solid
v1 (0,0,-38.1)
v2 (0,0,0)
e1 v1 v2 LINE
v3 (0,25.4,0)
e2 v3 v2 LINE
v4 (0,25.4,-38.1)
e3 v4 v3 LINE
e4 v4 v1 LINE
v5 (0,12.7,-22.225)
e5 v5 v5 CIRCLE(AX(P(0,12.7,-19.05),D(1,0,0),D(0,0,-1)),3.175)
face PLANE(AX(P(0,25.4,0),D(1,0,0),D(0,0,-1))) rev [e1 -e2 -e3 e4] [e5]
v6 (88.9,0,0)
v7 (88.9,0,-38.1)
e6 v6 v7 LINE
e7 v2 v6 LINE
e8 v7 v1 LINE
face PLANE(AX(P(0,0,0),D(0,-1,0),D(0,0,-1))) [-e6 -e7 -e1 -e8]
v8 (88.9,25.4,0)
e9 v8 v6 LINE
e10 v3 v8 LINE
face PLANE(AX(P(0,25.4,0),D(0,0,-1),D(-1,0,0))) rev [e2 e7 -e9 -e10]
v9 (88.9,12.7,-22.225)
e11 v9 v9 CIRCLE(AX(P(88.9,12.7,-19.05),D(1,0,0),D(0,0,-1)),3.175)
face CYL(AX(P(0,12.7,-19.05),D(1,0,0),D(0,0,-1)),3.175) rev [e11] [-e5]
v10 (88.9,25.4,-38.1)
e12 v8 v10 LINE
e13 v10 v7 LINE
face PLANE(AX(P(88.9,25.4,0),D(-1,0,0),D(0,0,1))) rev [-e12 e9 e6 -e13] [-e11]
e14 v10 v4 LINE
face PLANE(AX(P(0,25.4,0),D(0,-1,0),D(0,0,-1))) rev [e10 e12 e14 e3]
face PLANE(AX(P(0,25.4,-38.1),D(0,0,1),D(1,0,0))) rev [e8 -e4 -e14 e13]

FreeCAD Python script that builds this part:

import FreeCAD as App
import Part
import Sketcher
from FreeCAD import Vector
Q = App.Units.Quantity

doc = App.newDocument("Part")
body = doc.addObject("PartDesign::Body", "Body")

# Sketch on XZ plane
sketch1 = doc.addObject("Sketcher::SketchObject", "Sketch")
body.addObject(sketch1)
sketch1.AttachmentSupport = (doc.XZ_Plane, [""])
sketch1.MapMode = "FlatFace"
sketch1.addGeometry([
    Part.LineSegment(Vector(0, -38, 0), Vector(0, 0, 0)),
    Part.LineSegment(Vector(0, 0, 0), Vector(89, 0, 0)),
    Part.LineSegment(Vector(89, 0, 0), Vector(89, -38, 0)),
    Part.LineSegment(Vector(89, -38, 0), Vector(0, -38, 0)),
], False)
sketch1.addConstraint([
    Sketcher.Constraint("Coincident", 0, 2, 1, 1),
    Sketcher.Constraint("Coincident", 1, 2, 2, 1),
    Sketcher.Constraint("Coincident", 2, 2, 3, 1),
    Sketcher.Constraint("Coincident", 3, 2, 0, 1),
    Sketcher.Constraint("Vertical", 0),
    Sketcher.Constraint("Horizontal", 1),
    Sketcher.Constraint("Vertical", 2),
    Sketcher.Constraint("Horizontal", 3),
    Sketcher.Constraint("Coincident", 0, 2, -1, 1),
    Sketcher.Constraint("DistanceX", 1, 1, 1, 2, Q("3.5 in")),
    Sketcher.Constraint("DistanceY", 0, 1, 0, 2, Q("1.5 in")),
])
pad1 = doc.addObject("PartDesign::Pad", "Pad")
body.addObject(pad1)
pad1.Profile = sketch1
pad1.Length = Q("1 in")
pad1.Reversed = True

# Sketch on YZ plane
sketch2 = doc.addObject("Sketcher::SketchObject", "Sketch001")
body.addObject(sketch2)
sketch2.AttachmentSupport = (doc.YZ_Plane, [""])
sketch2.MapMode = "FlatFace"
sketch2.AttachmentOffset = App.Placement(Vector(0, 0, 3.5 * 25.4), App.Rotation())
sketch2.addGeometry(Part.Circle(Vector(12.7, -19.1, 0), Vector(0, 0, 1), 3.2), False)
sketch2.addConstraint([
    Sketcher.Constraint("Diameter", 0, Q("0.25 in")),
    Sketcher.Constraint("DistanceX", -1, 1, 0, 3, Q("0.5 in")),
    Sketcher.Constraint("DistanceY", 0, 3, -1, 1, Q("0.75 in")),
])
pocket1 = doc.addObject("PartDesign::Pocket", "Pocket")
body.addObject(pocket1)
pocket1.Profile = sketch2
pocket1.Type = "ThroughAll"

doc.recompute()
